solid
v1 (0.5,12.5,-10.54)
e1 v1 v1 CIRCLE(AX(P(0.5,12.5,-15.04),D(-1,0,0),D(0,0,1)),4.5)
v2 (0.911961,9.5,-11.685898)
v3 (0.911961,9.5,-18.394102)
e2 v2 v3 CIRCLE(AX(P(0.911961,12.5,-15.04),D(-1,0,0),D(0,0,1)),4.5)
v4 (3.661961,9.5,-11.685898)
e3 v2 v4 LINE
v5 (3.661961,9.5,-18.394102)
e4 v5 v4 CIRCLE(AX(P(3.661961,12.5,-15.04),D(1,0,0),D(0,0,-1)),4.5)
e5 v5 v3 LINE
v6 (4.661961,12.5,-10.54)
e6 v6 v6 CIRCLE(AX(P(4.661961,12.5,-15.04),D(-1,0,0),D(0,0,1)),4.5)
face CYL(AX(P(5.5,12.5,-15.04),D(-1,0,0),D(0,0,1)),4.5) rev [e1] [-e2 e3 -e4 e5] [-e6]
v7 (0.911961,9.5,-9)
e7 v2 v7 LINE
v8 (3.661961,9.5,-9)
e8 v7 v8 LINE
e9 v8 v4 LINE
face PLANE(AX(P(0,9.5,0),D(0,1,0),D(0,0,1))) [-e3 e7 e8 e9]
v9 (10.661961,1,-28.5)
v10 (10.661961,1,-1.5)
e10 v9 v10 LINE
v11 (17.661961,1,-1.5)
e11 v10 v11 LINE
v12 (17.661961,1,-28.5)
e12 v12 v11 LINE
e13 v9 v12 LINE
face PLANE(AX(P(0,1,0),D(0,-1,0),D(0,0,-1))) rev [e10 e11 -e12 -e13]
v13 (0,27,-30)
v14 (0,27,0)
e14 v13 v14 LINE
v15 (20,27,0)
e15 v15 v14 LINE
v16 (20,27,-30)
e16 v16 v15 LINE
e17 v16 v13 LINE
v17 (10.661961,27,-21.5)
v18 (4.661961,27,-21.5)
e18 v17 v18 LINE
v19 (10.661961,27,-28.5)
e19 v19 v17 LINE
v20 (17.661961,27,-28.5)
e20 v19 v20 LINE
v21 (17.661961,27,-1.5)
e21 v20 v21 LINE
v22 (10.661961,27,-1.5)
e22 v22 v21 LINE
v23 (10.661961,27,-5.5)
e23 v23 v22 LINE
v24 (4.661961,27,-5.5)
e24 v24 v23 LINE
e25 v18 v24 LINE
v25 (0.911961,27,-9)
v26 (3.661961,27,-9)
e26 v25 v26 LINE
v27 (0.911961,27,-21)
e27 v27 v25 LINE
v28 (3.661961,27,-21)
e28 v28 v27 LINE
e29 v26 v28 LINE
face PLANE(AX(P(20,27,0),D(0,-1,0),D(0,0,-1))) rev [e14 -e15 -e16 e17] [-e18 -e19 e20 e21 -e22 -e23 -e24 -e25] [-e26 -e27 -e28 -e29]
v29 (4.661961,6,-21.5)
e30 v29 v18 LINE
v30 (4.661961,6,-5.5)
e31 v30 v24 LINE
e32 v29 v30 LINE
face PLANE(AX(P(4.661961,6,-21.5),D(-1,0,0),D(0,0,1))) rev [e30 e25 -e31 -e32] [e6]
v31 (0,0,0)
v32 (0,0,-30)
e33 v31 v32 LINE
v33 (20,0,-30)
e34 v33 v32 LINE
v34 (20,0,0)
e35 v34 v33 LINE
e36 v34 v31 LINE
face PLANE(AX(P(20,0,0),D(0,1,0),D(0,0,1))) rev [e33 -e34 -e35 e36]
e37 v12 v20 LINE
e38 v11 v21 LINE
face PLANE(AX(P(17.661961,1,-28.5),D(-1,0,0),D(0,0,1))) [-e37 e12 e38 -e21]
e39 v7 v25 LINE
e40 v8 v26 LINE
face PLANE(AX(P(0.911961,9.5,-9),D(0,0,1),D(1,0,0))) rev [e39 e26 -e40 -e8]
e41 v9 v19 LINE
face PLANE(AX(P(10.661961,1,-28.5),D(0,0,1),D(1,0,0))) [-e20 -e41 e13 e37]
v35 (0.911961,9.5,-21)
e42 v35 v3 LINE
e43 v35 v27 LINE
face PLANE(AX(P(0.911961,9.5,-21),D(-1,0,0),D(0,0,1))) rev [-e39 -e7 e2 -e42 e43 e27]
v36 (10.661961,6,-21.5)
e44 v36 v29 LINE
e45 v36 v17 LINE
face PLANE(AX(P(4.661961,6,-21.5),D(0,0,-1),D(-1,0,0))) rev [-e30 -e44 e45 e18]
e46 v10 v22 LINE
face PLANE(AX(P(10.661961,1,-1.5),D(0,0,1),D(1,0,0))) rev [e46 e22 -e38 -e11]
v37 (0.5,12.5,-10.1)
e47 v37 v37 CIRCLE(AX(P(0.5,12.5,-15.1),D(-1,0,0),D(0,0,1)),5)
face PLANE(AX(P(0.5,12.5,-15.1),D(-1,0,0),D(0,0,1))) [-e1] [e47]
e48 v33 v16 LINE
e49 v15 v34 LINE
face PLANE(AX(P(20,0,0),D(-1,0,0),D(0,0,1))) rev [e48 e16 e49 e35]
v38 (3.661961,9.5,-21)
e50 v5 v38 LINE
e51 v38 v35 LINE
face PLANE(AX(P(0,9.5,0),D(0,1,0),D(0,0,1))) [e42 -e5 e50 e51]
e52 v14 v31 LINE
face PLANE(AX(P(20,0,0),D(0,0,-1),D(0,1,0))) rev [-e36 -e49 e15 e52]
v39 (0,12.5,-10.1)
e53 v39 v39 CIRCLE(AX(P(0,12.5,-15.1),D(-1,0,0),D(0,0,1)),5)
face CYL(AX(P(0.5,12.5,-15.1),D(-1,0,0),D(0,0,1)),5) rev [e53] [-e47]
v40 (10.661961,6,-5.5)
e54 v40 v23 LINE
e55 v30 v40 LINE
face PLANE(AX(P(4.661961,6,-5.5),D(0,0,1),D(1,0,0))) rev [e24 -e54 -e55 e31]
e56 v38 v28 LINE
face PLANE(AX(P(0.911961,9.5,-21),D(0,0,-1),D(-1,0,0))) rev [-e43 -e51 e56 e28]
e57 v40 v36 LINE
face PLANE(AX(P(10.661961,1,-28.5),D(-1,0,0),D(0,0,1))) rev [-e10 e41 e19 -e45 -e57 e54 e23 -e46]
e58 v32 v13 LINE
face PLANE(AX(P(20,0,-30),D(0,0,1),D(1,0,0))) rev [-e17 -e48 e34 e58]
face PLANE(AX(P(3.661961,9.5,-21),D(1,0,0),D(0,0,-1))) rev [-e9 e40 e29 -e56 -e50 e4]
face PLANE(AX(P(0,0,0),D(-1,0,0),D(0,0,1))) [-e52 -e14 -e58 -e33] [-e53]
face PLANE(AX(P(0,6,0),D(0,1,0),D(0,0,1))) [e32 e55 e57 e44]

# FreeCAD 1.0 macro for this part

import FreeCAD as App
import Part
import Sketcher

V = App.Vector
Q = App.Units.Quantity


def add_polygon(sketch, points):
    """Adds a closed chain of lines whose ends are joined by coincident constraints."""
    first, n = sketch.GeometryCount, len(points)
    for a, b in zip(points, points[1:] + points[:1]):
        sketch.addGeometry(Part.LineSegment(App.Vector(*a, 0), App.Vector(*b, 0)), False)
    for i in range(n):
        sketch.addConstraint(Sketcher.Constraint("Coincident", first + i, 2, first + (i + 1) % n, 1))

doc = App.newDocument("Part")
body = doc.addObject("PartDesign::Body", "Body")

# Sketch on YZ plane
sketch1 = body.newObject("Sketcher::SketchObject", "Sketch")
sketch1.AttachmentSupport = (doc.getObject("YZ_Plane"), [""])
sketch1.MapMode = "FlatFace"
add_polygon(sketch1, [(27, 0), (0, 0), (0, -30), (27, -30)])  # lines 0-3
sketch1.addConstraint([
    Sketcher.Constraint("Horizontal", 0),
    Sketcher.Constraint("Vertical", 1),
    Sketcher.Constraint("Horizontal", 2),
    Sketcher.Constraint("Vertical", 3),
    Sketcher.Constraint("Coincident", 0, 2, -1, 1),
    Sketcher.Constraint("DistanceX", 0, 2, 0, 1, Q("27 mm")),
    Sketcher.Constraint("DistanceY", 1, 2, 1, 1, Q("30 mm")),
])
pad1 = body.newObject("PartDesign::Pad", "Pad")
pad1.Profile = sketch1
pad1.Length = 20

# Sketch on XZ plane
sketch2 = body.newObject("Sketcher::SketchObject", "Sketch001")
sketch2.AttachmentSupport = (doc.getObject("XZ_Plane"), [""])
sketch2.MapMode = "FlatFace"
sketch2.AttachmentOffset = App.Placement(V(0, 0, -27), App.Rotation())
add_polygon(sketch2, [(11, -28), (11, -2), (18, -2), (18, -28)])  # lines 0-3
sketch2.addConstraint([
    Sketcher.Constraint("Vertical", 0),
    Sketcher.Constraint("Horizontal", 1),
    Sketcher.Constraint("Vertical", 2),
    Sketcher.Constraint("Horizontal", 3),
    Sketcher.Constraint("DistanceX", 1, 1, 1, 2, Q("7 mm")),
    Sketcher.Constraint("DistanceY", 0, 1, 0, 2, Q("27 mm")),
    Sketcher.Constraint("DistanceY", 0, 2, -1, 1, Q("1.5 mm")),
    Sketcher.Constraint("DistanceX", -1, 1, 0, 2, Q("10.661961 mm")),
])
pocket1 = body.newObject("PartDesign::Pocket", "Pocket")
pocket1.Profile = sketch2
pocket1.Length = 26
pocket1.Reversed = True

# Sketch on XZ plane
sketch3 = body.newObject("Sketcher::SketchObject", "Sketch002")
sketch3.AttachmentSupport = (doc.getObject("XZ_Plane"), [""])
sketch3.MapMode = "FlatFace"
sketch3.AttachmentOffset = App.Placement(V(0, 0, -27), App.Rotation())
add_polygon(sketch3, [(5, -22), (5, -6), (11, -6), (11, -22)])  # lines 0-3
sketch3.addConstraint([
    Sketcher.Constraint("Vertical", 0),
    Sketcher.Constraint("Horizontal", 1),
    Sketcher.Constraint("Vertical", 2),
    Sketcher.Constraint("Horizontal", 3),
    Sketcher.Constraint("DistanceX", 1, 1, 1, 2, Q("6 mm")),
    Sketcher.Constraint("DistanceY", 0, 1, 0, 2, Q("16 mm")),
    Sketcher.Constraint("DistanceY", 0, 2, -1, 1, Q("5.5 mm")),
    Sketcher.Constraint("DistanceX", -1, 1, 0, 2, Q("4.661961 mm")),
])
pocket2 = body.newObject("PartDesign::Pocket", "Pocket001")
pocket2.Profile = sketch3
pocket2.Length = 21
pocket2.Reversed = True

# Sketch on YZ plane
sketch4 = body.newObject("Sketcher::SketchObject", "Sketch003")
sketch4.AttachmentSupport = (doc.getObject("YZ_Plane"), [""])
sketch4.MapMode = "FlatFace"
sketch4.addGeometry(Part.Circle(V(12, -15, 0), V(0, 0, 1), 5), False)
sketch4.addConstraint([
    Sketcher.Constraint("Diameter", 0, Q("10 mm")),
    Sketcher.Constraint("DistanceX", -1, 1, 0, 3, Q("12.5 mm")),
    Sketcher.Constraint("DistanceY", 0, 3, -1, 1, Q("15.1 mm")),
])
pocket3 = body.newObject("PartDesign::Pocket", "Pocket002")
pocket3.Profile = sketch4
pocket3.Length = 0.5
pocket3.Reversed = True

# Sketch on XZ plane
sketch5 = body.newObject("Sketcher::SketchObject", "Sketch004")
sketch5.AttachmentSupport = (doc.getObject("XZ_Plane"), [""])
sketch5.MapMode = "FlatFace"
sketch5.AttachmentOffset = App.Placement(V(0, 0, -27), App.Rotation())
add_polygon(sketch5, [(0.9, -21), (0.9, -9), (3.7, -9), (3.7, -21)])  # lines 0-3
sketch5.addConstraint([
    Sketcher.Constraint("Vertical", 0),
    Sketcher.Constraint("Horizontal", 1),
    Sketcher.Constraint("Vertical", 2),
    Sketcher.Constraint("Horizontal", 3),
    Sketcher.Constraint("DistanceY", 0, 1, 0, 2, Q("12 mm")),
    Sketcher.Constraint("DistanceY", 0, 2, -1, 1, Q("9 mm")),
    Sketcher.Constraint("DistanceX", 1, 1, 1, 2, Q("2.75 mm")),
    Sketcher.Constraint("DistanceX", -1, 1, 0, 2, Q("0.911961 mm")),
])
pocket4 = body.newObject("PartDesign::Pocket", "Pocket003")
pocket4.Profile = sketch5
pocket4.Length = 17.5
pocket4.Reversed = True

# Sketch on YZ plane
sketch6 = body.newObject("Sketcher::SketchObject", "Sketch005")
sketch6.AttachmentSupport = (doc.getObject("YZ_Plane"), [""])
sketch6.MapMode = "FlatFace"
sketch6.AttachmentOffset = App.Placement(V(0, 0, 0.5), App.Rotation())
sketch6.addGeometry(Part.Circle(V(12.5, -15, 0), V(0, 0, 1), 4.5), False)
sketch6.addConstraint([
    Sketcher.Constraint("Diameter", 0, Q("9 mm")),
    Sketcher.Constraint("DistanceX", -1, 1, 0, 3, Q("12.5 mm")),
    Sketcher.Constraint("DistanceY", 0, 3, -1, 1, Q("15.04 mm")),
])
pocket5 = body.newObject("PartDesign::Pocket", "Pocket004")
pocket5.Profile = sketch6
pocket5.Length = 5
pocket5.Reversed = True

doc.recompute()
